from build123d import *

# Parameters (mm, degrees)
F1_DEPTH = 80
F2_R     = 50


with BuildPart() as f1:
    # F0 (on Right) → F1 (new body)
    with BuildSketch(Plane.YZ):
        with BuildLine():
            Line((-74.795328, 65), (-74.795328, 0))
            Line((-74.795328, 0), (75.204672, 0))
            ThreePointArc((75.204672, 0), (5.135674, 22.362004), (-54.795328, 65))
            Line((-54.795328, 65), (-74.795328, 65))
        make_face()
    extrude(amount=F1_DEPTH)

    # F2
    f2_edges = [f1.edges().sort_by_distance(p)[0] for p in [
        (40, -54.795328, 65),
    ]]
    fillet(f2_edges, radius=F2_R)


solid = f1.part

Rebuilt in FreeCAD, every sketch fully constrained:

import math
import FreeCAD as App
import Part
import Sketcher
from FreeCAD import Vector
Q = App.Units.Quantity


def edges_at(feature, points):
    """Names of the edges that pass closest to the given points."""
    edges = feature.Shape.Edges
    near = lambda p: min(range(len(edges)), key=lambda i: edges[i].distToShape(Part.Vertex(*p))[0])
    return sorted({f"Edge{near(p) + 1}" for p in points})

doc = App.newDocument("Part")
body = doc.addObject("PartDesign::Body", "Body")

sketch1 = body.newObject("Sketcher::SketchObject", "Sketch")
sketch1.AttachmentSupport = (doc.getObject("YZ_Plane"), [""])
sketch1.MapMode = "FlatFace"
sketch1.addGeometry([
    Part.LineSegment(Vector(-75, 65, 0), Vector(-75, 0, 0)),
    Part.LineSegment(Vector(-75, 0, 0), Vector(75, 0, 0)),
    Part.ArcOfCircle(Part.Circle(Vector(112, 236, 0), Vector(0, 0, 1), 239), math.radians(-134), math.radians(-99)),
    Part.LineSegment(Vector(-55, 65, 0), Vector(-75, 65, 0)),
], False)
sketch1.addConstraint([
    Sketcher.Constraint("Coincident", 0, 2, 1, 1),
    Sketcher.Constraint("Coincident", 1, 2, 2, 2),
    Sketcher.Constraint("Coincident", 2, 1, 3, 1),
    Sketcher.Constraint("Coincident", 3, 2, 0, 1),
    Sketcher.Constraint("Vertical", 0),
    Sketcher.Constraint("Horizontal", 1),
    Sketcher.Constraint("Horizontal", 3),
    Sketcher.Constraint("PointOnObject", 0, 2, -1),
    Sketcher.Constraint("DistanceX", 1, 1, 1, 2, Q("150 mm")),
    Sketcher.Constraint("DistanceX", 3, 2, 3, 1, Q("20 mm")),
    Sketcher.Constraint("DistanceY", 0, 2, 0, 1, Q("65 mm")),
    Sketcher.Constraint("Radius", 2, Q("238.637102 mm")),
    Sketcher.Constraint("DistanceX", -1, 1, 2, 3, Q("111.857431 mm")),
])
pad1 = body.newObject("PartDesign::Pad", "Pad")
pad1.Profile = sketch1
pad1.Length = 80
doc.recompute()

fillet = body.newObject("PartDesign::Fillet", "Fillet")
fillet.Base = (pad1, edges_at(pad1, [(40, -54.795, 65)]))
fillet.Radius = 50

doc.recompute()
